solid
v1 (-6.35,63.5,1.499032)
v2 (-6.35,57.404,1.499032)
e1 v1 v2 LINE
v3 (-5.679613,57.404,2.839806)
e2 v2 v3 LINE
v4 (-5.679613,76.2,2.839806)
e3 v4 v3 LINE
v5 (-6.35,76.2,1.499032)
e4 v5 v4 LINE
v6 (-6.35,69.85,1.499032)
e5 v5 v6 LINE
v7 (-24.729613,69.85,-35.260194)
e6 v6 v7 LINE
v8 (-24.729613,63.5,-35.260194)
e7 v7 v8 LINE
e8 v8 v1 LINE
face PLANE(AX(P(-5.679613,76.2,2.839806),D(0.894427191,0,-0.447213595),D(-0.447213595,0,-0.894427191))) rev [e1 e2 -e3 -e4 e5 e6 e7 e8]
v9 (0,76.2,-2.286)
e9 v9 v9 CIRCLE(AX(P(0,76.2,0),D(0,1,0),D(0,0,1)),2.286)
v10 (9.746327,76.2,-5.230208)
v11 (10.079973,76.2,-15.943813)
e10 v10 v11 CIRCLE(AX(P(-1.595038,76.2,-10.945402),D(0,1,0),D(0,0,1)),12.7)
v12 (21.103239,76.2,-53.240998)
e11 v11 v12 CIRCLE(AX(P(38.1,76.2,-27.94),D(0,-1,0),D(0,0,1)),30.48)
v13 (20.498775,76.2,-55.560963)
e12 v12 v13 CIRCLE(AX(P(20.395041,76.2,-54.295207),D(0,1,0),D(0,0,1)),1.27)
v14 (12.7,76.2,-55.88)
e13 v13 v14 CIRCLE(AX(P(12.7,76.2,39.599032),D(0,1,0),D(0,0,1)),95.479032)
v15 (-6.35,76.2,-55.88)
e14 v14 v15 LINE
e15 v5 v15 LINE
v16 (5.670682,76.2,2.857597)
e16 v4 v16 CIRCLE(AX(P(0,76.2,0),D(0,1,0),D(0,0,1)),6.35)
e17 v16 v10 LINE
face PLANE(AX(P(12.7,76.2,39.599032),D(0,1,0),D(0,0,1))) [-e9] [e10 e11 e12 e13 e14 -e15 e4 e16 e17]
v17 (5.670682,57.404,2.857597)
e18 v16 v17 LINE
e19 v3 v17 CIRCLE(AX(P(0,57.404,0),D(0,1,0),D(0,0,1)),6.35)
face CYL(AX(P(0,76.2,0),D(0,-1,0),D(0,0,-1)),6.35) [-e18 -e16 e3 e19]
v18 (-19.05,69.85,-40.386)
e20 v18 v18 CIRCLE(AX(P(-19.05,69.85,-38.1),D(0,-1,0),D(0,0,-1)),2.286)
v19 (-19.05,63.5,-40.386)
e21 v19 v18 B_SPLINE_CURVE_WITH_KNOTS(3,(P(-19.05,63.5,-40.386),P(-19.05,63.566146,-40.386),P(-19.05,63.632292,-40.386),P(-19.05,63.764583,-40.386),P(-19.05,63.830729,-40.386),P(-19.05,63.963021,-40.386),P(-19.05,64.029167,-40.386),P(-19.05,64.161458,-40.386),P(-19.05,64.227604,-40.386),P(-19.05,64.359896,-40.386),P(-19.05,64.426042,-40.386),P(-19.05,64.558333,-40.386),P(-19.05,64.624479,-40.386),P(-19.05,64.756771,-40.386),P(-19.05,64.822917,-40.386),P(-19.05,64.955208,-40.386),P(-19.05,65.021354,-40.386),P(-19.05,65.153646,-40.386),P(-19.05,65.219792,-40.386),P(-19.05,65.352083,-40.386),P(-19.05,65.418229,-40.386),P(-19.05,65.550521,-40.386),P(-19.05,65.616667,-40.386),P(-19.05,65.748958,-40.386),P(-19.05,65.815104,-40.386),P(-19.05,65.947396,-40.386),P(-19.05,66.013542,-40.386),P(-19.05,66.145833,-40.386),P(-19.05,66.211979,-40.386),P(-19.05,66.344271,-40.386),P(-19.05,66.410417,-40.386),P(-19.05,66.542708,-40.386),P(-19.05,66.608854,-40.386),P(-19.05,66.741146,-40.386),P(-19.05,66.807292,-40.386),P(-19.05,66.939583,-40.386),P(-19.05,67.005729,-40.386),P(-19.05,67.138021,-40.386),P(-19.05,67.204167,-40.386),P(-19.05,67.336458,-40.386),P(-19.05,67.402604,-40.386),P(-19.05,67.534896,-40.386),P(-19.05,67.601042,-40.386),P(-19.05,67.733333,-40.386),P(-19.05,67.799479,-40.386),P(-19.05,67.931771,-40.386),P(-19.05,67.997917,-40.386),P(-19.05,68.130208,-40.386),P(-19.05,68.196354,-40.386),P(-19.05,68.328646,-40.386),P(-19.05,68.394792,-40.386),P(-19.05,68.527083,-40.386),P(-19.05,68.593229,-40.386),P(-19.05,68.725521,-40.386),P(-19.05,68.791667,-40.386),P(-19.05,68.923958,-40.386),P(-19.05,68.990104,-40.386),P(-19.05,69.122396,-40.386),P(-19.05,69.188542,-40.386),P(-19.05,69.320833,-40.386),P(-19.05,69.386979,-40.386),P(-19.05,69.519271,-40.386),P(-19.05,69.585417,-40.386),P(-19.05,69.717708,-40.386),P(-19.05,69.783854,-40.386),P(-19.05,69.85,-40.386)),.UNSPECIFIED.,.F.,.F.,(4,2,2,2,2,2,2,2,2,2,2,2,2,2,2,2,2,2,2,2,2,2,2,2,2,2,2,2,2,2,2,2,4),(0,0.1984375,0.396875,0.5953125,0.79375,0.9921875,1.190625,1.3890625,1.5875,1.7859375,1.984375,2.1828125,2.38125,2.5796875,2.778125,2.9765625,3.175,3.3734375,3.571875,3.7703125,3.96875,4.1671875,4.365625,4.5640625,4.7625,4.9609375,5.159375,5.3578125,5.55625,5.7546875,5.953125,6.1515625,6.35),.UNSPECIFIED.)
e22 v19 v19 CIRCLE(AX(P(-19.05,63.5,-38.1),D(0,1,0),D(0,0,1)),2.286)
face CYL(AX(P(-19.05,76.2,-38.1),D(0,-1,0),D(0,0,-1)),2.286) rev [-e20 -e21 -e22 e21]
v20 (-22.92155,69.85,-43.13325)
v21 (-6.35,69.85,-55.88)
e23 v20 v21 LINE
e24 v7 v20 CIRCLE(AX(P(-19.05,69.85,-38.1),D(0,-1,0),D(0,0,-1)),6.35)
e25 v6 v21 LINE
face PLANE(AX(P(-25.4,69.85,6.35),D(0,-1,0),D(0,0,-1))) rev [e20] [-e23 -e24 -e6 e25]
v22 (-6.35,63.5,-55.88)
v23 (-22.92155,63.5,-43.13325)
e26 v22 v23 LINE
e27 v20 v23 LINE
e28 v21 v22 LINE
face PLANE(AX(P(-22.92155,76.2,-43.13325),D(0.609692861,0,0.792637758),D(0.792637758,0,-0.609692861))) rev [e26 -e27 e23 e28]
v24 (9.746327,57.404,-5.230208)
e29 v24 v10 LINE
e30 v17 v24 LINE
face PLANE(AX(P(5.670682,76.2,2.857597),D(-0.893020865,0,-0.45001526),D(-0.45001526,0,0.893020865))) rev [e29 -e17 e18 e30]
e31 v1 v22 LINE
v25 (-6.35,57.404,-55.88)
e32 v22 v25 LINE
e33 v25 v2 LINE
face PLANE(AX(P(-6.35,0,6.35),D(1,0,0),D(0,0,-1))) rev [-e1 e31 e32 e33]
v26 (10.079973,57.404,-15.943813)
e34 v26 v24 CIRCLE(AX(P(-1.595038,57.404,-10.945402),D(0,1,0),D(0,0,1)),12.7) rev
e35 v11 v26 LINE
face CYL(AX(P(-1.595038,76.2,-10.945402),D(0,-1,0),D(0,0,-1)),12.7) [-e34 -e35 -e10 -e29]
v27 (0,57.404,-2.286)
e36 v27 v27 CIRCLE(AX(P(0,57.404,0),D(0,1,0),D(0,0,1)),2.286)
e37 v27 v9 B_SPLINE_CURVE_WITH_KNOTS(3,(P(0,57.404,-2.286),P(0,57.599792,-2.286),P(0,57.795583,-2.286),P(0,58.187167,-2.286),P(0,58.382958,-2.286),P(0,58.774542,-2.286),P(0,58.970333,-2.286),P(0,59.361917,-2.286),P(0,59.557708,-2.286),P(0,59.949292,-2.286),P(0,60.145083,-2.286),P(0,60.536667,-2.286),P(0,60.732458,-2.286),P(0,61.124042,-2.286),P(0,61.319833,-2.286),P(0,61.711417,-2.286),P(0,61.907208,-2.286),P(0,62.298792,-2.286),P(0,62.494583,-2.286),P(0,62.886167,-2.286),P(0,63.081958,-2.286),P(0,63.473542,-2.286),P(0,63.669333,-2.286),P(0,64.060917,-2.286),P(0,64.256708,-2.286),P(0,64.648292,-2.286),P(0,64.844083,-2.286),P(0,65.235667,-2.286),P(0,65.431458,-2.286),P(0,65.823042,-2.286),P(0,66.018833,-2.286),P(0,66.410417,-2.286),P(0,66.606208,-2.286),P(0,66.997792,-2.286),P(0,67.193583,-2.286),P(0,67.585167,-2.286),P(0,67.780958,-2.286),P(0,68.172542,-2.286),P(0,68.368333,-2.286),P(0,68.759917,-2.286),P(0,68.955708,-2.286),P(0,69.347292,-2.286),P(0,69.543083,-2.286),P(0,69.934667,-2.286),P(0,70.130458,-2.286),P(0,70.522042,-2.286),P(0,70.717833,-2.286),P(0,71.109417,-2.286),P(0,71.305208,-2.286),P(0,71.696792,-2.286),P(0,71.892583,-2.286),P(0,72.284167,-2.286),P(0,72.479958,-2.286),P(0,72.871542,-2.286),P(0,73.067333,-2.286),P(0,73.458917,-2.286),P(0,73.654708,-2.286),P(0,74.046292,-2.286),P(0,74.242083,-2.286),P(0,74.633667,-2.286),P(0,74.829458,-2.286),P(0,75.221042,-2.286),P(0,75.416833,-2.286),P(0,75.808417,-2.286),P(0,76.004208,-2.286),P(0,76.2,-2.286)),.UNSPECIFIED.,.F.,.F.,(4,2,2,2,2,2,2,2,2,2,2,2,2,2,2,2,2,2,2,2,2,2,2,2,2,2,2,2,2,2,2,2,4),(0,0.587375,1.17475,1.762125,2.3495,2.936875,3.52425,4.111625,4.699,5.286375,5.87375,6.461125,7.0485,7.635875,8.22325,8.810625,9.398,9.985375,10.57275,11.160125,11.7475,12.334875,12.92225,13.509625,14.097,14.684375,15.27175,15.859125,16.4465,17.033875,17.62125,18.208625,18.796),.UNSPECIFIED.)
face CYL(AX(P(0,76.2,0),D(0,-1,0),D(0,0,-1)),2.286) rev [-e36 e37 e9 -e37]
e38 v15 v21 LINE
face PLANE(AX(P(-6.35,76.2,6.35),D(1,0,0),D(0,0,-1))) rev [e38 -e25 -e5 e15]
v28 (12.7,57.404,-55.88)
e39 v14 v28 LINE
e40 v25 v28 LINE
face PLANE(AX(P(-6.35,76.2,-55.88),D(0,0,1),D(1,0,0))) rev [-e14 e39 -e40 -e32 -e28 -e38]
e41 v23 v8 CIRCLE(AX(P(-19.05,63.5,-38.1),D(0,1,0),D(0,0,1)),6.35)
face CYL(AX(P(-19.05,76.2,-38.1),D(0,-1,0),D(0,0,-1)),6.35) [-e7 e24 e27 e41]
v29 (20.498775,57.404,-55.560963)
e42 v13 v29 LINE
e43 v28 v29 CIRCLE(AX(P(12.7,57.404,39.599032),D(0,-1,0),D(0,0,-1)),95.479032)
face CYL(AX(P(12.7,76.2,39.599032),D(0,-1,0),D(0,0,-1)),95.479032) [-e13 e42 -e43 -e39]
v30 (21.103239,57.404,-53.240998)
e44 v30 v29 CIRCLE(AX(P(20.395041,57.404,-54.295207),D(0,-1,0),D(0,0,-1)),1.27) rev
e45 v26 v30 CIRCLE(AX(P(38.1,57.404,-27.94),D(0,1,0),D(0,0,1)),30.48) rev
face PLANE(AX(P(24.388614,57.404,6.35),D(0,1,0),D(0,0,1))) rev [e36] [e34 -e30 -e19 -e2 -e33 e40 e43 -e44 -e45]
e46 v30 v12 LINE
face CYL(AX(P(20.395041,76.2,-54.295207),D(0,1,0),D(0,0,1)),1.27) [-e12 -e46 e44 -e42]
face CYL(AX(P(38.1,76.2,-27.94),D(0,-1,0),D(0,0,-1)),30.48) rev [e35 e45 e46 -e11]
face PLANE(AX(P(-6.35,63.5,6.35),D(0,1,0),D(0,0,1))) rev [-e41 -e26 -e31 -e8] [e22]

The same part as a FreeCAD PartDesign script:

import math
import FreeCAD as App
import Part
import Sketcher
Q = App.Units.Quantity


def edges_at(feature, points):
    """Names of the edges that pass closest to the given points."""
    edges = feature.Shape.Edges
    near = lambda p: min(range(len(edges)), key=lambda i: edges[i].distToShape(Part.Vertex(*p))[0])
    return sorted({f"Edge{near(p) + 1}" for p in points})

doc = App.newDocument("Part")
body = doc.addObject("PartDesign::Body", "Body")

# Sketch on XZ plane
sketch1 = body.newObject("Sketcher::SketchObject", "Sketch")
sketch1.AttachmentSupport = (doc.getObject("XZ_Plane"), [""])
sketch1.MapMode = "FlatFace"
sketch1.addGeometry([
    Part.LineSegment(App.Vector(-24.7, -35.3, 0), App.Vector(-5.7, 2.8, 0)),  # 0
    Part.ArcOfCircle(Part.Circle(App.Vector(0, 0, 0), App.Vector(0, 0, 1), 6.3), math.radians(27), math.radians(153)),  # 1
    Part.LineSegment(App.Vector(5.7, 2.9, 0), App.Vector(12.7, -11.1, 0)),  # 2
    Part.ArcOfCircle(Part.Circle(App.Vector(38.1, -27.9, 0), App.Vector(0, 0, 1), 30.5), math.radians(146), math.radians(243)),  # 3
    Part.ArcOfCircle(Part.Circle(App.Vector(12.7, 39.6, 0), App.Vector(0, 0, 1), 95.5), math.radians(-90), math.radians(-82.97)),  # 4
    Part.LineSegment(App.Vector(12.7, -55.9, 0), App.Vector(-6.3, -55.9, 0)),  # 5
    Part.LineSegment(App.Vector(-6.3, -55.9, 0), App.Vector(-22.9, -43.1, 0)),  # 6
    Part.ArcOfCircle(Part.Circle(App.Vector(-19, -38.1, 0), App.Vector(0, 0, 1), 6.4), math.radians(153), math.radians(232)),  # 7
    Part.Circle(App.Vector(0, 0, 0), App.Vector(0, 0, 1), 2.3),  # 8
    Part.Circle(App.Vector(-19.1, -38.1, 0), App.Vector(0, 0, 1), 2.3),  # 9
], False)
sketch1.addConstraint([
    Sketcher.Constraint("Tangent", 0, 2, 1, 2),
    Sketcher.Constraint("Tangent", 1, 1, 2, 1),
    Sketcher.Constraint("Coincident", 2, 2, 3, 1),
    Sketcher.Constraint("Coincident", 3, 2, 4, 2),
    Sketcher.Constraint("Tangent", 4, 1, 5, 1),
    Sketcher.Constraint("Coincident", 5, 2, 6, 1),
    Sketcher.Constraint("Tangent", 6, 2, 7, 2),
    Sketcher.Constraint("Tangent", 7, 1, 0, 1),
    Sketcher.Constraint("Horizontal", 5),
    Sketcher.Constraint("Coincident", 1, 3, -1, 1),
    Sketcher.Constraint("Coincident", 8, 3, -1, 1),
    Sketcher.Constraint("Coincident", 9, 3, 7, 3),
    Sketcher.Constraint("Equal", 1, 7),
    Sketcher.Constraint("Equal", 8, 9),
    Sketcher.Constraint("Vertical", 4, 3, 2, 2),
    Sketcher.Constraint("Radius", 3, Q("1.2 in")),
    Sketcher.Constraint("Diameter", 8, Q("0.18 in")),
    Sketcher.Constraint("Radius", 1, Q("0.25 in")),
    Sketcher.Constraint("DistanceX", 4, 3, 3, 3, Q("1 in")),
    Sketcher.Constraint("DistanceX", 5, 2, 5, 1, Q("0.75 in")),
    Sketcher.Constraint("DistanceX", -1, 1, 3, 3, Q("1.5 in")),
    Sketcher.Constraint("DistanceY", 3, 3, -1, 1, Q("1.1 in")),
    Sketcher.Constraint("DistanceY", 7, 3, -1, 1, Q("1.5 in")),
    Sketcher.Constraint("DistanceY", 4, 1, -1, 1, Q("2.2 in")),
    Sketcher.Constraint("DistanceX", 7, 3, 5, 2, Q("0.5 in")),
    Sketcher.Constraint("Radius", 4, 95.479032),
])
pad1 = body.newObject("PartDesign::Pad", "Pad")
pad1.Profile = sketch1
pad1.Length = Q("3 in")
pad1.Reversed = True

# Sketch on XY plane
sketch2 = body.newObject("Sketcher::SketchObject", "Sketch001")
sketch2.AttachmentSupport = (doc.getObject("XY_Plane"), [""])
sketch2.MapMode = "FlatFace"
sketch2.AttachmentOffset = App.Placement(App.Vector(0, 0, -2.2 * 25.4), App.Rotation())
sketch2.addGeometry([
    Part.LineSegment(App.Vector(-6, 64, 0), App.Vector(-6, 0, 0)),  # 0
    Part.LineSegment(App.Vector(-6, 0, 0), App.Vector(-25, 0, 0)),  # 1
    Part.LineSegment(App.Vector(-25, 0, 0), App.Vector(-25, 64, 0)),  # 2
    Part.LineSegment(App.Vector(-25, 64, 0), App.Vector(-6, 64, 0)),  # 3
    Part.LineSegment(App.Vector(-6, 76, 0), App.Vector(-6, 70, 0)),  # 4
    Part.LineSegment(App.Vector(-6, 70, 0), App.Vector(-25, 70, 0)),  # 5
    Part.LineSegment(App.Vector(-25, 70, 0), App.Vector(-25, 76, 0)),  # 6
    Part.LineSegment(App.Vector(-25, 76, 0), App.Vector(-6, 76, 0)),  # 7
], False)
sketch2.addConstraint([
    Sketcher.Constraint("Coincident", 0, 2, 1, 1),
    Sketcher.Constraint("Coincident", 1, 2, 2, 1),
    Sketcher.Constraint("Coincident", 2, 2, 3, 1),
    Sketcher.Constraint("Coincident", 3, 2, 0, 1),
    Sketcher.Constraint("Coincident", 4, 2, 5, 1),
    Sketcher.Constraint("Coincident", 5, 2, 6, 1),
    Sketcher.Constraint("Coincident", 6, 2, 7, 1),
    Sketcher.Constraint("Coincident", 7, 2, 4, 1),
    Sketcher.Constraint("Vertical", 0),
    Sketcher.Constraint("Horizontal", 1),
    Sketcher.Constraint("Vertical", 2),
    Sketcher.Constraint("Horizontal", 3),
    Sketcher.Constraint("Vertical", 4),
    Sketcher.Constraint("Horizontal", 5),
    Sketcher.Constraint("Vertical", 6),
    Sketcher.Constraint("Horizontal", 7),
    Sketcher.Constraint("PointOnObject", 0, 2, -1),
    Sketcher.Constraint("Vertical", 3, 2, 4, 2),
    Sketcher.Constraint("Vertical", 2, 2, 5, 2),
    Sketcher.Constraint("DistanceY", 0, 2, 0, 1, Q("2.5 in")),
    Sketcher.Constraint("DistanceX", 1, 2, -1, 1, Q("1 in")),
    Sketcher.Constraint("DistanceY", -1, 1, 6, 2, Q("3 in")),
    Sketcher.Constraint("DistanceX", 1, 2, 1, 1, Q("0.75 in")),
    Sketcher.Constraint("DistanceY", 4, 2, 4, 1, Q("0.25 in")),
])
pocket1 = body.newObject("PartDesign::Pocket", "Pocket")
pocket1.Profile = sketch2
pocket1.Type = "ThroughAll"
pocket1.Reversed = True

# Sketch on YZ plane
sketch3 = body.newObject("Sketcher::SketchObject", "Sketch002")
sketch3.AttachmentSupport = (doc.getObject("YZ_Plane"), [""])
sketch3.MapMode = "FlatFace"
sketch3.AttachmentOffset = App.Placement(App.Vector(0, 0, -0.25 * 25.4), App.Rotation())
sketch3.addGeometry([
    Part.LineSegment(App.Vector(57, -19, 0), App.Vector(51, -19, 0)),
    Part.LineSegment(App.Vector(51, -19, 0), App.Vector(51, 6, 0)),
    Part.LineSegment(App.Vector(51, 6, 0), App.Vector(57, 6, 0)),
    Part.LineSegment(App.Vector(57, 6, 0), App.Vector(57, -19, 0)),
], False)
sketch3.addConstraint([
    Sketcher.Constraint("Coincident", 0, 2, 1, 1),
    Sketcher.Constraint("Coincident", 1, 2, 2, 1),
    Sketcher.Constraint("Coincident", 2, 2, 3, 1),
    Sketcher.Constraint("Coincident", 3, 2, 0, 1),
    Sketcher.Constraint("Horizontal", 0),
    Sketcher.Constraint("Vertical", 1),
    Sketcher.Constraint("Horizontal", 2),
    Sketcher.Constraint("Vertical", 3),
    Sketcher.Constraint("DistanceY", 1, 1, 1, 2, Q("1 in")),
    Sketcher.Constraint("DistanceX", 0, 2, 0, 1, Q("0.27 in")),
    Sketcher.Constraint("DistanceX", -1, 1, 0, 2, Q("1.99 in")),
    Sketcher.Constraint("DistanceY", 0, 2, -1, 1, Q("0.75 in")),
])
pocket2 = body.newObject("PartDesign::Pocket", "Pocket001")
pocket2.Profile = sketch3
pocket2.Type = "ThroughAll"
pocket2.Reversed = True
doc.recompute()

fillet = body.newObject("PartDesign::Fillet", "Fillet")
fillet.Base = (pocket2, edges_at(pocket2, [(24.389, 38.1, -55.162)]))
fillet.Radius = Q("0.05 in")
doc.recompute()

fillet2 = body.newObject("PartDesign::Fillet", "Fillet001")
fillet2.Base = (fillet, edges_at(fillet, [(12.7, 66.802, -11.092), (12.7, 25.273, -11.092)]))
fillet2.Radius = Q("0.5 in")

# Sketch on XZ plane
sketch4 = body.newObject("Sketcher::SketchObject", "Sketch003")
sketch4.AttachmentSupport = (doc.getObject("XZ_Plane"), [""])
sketch4.MapMode = "FlatFace"
sketch4.AttachmentOffset = App.Placement(App.Vector(0, 0, -2.26 * 25.4), App.Rotation())
sketch4.addGeometry([
    Part.LineSegment(App.Vector(-31, 11, 0), App.Vector(-31, -63, 0)),
    Part.LineSegment(App.Vector(-31, -63, 0), App.Vector(28, -63, 0)),
    Part.LineSegment(App.Vector(28, -63, 0), App.Vector(28, 11, 0)),
    Part.LineSegment(App.Vector(28, 11, 0), App.Vector(-31, 11, 0)),
], False)
sketch4.addConstraint([
    Sketcher.Constraint("Coincident", 0, 2, 1, 1),
    Sketcher.Constraint("Coincident", 1, 2, 2, 1),
    Sketcher.Constraint("Coincident", 2, 2, 3, 1),
    Sketcher.Constraint("Coincident", 3, 2, 0, 1),
    Sketcher.Constraint("Vertical", 0),
    Sketcher.Constraint("Horizontal", 1),
    Sketcher.Constraint("Vertical", 2),
    Sketcher.Constraint("Horizontal", 3),
    Sketcher.Constraint("DistanceX", 1, 1, 1, 2, 59.009553),
    Sketcher.Constraint("DistanceY", 0, 2, 0, 1, 74.343025),
    Sketcher.Constraint("DistanceX", 0, 2, -1, 1, 31.25395),
    Sketcher.Constraint("DistanceY", 0, 2, -1, 1, 62.855112),
])
pocket3 = body.newObject("PartDesign::Pocket", "Pocket002")
pocket3.Profile = sketch4
pocket3.Type = "ThroughAll"
pocket3.Reversed = True

doc.recompute()
